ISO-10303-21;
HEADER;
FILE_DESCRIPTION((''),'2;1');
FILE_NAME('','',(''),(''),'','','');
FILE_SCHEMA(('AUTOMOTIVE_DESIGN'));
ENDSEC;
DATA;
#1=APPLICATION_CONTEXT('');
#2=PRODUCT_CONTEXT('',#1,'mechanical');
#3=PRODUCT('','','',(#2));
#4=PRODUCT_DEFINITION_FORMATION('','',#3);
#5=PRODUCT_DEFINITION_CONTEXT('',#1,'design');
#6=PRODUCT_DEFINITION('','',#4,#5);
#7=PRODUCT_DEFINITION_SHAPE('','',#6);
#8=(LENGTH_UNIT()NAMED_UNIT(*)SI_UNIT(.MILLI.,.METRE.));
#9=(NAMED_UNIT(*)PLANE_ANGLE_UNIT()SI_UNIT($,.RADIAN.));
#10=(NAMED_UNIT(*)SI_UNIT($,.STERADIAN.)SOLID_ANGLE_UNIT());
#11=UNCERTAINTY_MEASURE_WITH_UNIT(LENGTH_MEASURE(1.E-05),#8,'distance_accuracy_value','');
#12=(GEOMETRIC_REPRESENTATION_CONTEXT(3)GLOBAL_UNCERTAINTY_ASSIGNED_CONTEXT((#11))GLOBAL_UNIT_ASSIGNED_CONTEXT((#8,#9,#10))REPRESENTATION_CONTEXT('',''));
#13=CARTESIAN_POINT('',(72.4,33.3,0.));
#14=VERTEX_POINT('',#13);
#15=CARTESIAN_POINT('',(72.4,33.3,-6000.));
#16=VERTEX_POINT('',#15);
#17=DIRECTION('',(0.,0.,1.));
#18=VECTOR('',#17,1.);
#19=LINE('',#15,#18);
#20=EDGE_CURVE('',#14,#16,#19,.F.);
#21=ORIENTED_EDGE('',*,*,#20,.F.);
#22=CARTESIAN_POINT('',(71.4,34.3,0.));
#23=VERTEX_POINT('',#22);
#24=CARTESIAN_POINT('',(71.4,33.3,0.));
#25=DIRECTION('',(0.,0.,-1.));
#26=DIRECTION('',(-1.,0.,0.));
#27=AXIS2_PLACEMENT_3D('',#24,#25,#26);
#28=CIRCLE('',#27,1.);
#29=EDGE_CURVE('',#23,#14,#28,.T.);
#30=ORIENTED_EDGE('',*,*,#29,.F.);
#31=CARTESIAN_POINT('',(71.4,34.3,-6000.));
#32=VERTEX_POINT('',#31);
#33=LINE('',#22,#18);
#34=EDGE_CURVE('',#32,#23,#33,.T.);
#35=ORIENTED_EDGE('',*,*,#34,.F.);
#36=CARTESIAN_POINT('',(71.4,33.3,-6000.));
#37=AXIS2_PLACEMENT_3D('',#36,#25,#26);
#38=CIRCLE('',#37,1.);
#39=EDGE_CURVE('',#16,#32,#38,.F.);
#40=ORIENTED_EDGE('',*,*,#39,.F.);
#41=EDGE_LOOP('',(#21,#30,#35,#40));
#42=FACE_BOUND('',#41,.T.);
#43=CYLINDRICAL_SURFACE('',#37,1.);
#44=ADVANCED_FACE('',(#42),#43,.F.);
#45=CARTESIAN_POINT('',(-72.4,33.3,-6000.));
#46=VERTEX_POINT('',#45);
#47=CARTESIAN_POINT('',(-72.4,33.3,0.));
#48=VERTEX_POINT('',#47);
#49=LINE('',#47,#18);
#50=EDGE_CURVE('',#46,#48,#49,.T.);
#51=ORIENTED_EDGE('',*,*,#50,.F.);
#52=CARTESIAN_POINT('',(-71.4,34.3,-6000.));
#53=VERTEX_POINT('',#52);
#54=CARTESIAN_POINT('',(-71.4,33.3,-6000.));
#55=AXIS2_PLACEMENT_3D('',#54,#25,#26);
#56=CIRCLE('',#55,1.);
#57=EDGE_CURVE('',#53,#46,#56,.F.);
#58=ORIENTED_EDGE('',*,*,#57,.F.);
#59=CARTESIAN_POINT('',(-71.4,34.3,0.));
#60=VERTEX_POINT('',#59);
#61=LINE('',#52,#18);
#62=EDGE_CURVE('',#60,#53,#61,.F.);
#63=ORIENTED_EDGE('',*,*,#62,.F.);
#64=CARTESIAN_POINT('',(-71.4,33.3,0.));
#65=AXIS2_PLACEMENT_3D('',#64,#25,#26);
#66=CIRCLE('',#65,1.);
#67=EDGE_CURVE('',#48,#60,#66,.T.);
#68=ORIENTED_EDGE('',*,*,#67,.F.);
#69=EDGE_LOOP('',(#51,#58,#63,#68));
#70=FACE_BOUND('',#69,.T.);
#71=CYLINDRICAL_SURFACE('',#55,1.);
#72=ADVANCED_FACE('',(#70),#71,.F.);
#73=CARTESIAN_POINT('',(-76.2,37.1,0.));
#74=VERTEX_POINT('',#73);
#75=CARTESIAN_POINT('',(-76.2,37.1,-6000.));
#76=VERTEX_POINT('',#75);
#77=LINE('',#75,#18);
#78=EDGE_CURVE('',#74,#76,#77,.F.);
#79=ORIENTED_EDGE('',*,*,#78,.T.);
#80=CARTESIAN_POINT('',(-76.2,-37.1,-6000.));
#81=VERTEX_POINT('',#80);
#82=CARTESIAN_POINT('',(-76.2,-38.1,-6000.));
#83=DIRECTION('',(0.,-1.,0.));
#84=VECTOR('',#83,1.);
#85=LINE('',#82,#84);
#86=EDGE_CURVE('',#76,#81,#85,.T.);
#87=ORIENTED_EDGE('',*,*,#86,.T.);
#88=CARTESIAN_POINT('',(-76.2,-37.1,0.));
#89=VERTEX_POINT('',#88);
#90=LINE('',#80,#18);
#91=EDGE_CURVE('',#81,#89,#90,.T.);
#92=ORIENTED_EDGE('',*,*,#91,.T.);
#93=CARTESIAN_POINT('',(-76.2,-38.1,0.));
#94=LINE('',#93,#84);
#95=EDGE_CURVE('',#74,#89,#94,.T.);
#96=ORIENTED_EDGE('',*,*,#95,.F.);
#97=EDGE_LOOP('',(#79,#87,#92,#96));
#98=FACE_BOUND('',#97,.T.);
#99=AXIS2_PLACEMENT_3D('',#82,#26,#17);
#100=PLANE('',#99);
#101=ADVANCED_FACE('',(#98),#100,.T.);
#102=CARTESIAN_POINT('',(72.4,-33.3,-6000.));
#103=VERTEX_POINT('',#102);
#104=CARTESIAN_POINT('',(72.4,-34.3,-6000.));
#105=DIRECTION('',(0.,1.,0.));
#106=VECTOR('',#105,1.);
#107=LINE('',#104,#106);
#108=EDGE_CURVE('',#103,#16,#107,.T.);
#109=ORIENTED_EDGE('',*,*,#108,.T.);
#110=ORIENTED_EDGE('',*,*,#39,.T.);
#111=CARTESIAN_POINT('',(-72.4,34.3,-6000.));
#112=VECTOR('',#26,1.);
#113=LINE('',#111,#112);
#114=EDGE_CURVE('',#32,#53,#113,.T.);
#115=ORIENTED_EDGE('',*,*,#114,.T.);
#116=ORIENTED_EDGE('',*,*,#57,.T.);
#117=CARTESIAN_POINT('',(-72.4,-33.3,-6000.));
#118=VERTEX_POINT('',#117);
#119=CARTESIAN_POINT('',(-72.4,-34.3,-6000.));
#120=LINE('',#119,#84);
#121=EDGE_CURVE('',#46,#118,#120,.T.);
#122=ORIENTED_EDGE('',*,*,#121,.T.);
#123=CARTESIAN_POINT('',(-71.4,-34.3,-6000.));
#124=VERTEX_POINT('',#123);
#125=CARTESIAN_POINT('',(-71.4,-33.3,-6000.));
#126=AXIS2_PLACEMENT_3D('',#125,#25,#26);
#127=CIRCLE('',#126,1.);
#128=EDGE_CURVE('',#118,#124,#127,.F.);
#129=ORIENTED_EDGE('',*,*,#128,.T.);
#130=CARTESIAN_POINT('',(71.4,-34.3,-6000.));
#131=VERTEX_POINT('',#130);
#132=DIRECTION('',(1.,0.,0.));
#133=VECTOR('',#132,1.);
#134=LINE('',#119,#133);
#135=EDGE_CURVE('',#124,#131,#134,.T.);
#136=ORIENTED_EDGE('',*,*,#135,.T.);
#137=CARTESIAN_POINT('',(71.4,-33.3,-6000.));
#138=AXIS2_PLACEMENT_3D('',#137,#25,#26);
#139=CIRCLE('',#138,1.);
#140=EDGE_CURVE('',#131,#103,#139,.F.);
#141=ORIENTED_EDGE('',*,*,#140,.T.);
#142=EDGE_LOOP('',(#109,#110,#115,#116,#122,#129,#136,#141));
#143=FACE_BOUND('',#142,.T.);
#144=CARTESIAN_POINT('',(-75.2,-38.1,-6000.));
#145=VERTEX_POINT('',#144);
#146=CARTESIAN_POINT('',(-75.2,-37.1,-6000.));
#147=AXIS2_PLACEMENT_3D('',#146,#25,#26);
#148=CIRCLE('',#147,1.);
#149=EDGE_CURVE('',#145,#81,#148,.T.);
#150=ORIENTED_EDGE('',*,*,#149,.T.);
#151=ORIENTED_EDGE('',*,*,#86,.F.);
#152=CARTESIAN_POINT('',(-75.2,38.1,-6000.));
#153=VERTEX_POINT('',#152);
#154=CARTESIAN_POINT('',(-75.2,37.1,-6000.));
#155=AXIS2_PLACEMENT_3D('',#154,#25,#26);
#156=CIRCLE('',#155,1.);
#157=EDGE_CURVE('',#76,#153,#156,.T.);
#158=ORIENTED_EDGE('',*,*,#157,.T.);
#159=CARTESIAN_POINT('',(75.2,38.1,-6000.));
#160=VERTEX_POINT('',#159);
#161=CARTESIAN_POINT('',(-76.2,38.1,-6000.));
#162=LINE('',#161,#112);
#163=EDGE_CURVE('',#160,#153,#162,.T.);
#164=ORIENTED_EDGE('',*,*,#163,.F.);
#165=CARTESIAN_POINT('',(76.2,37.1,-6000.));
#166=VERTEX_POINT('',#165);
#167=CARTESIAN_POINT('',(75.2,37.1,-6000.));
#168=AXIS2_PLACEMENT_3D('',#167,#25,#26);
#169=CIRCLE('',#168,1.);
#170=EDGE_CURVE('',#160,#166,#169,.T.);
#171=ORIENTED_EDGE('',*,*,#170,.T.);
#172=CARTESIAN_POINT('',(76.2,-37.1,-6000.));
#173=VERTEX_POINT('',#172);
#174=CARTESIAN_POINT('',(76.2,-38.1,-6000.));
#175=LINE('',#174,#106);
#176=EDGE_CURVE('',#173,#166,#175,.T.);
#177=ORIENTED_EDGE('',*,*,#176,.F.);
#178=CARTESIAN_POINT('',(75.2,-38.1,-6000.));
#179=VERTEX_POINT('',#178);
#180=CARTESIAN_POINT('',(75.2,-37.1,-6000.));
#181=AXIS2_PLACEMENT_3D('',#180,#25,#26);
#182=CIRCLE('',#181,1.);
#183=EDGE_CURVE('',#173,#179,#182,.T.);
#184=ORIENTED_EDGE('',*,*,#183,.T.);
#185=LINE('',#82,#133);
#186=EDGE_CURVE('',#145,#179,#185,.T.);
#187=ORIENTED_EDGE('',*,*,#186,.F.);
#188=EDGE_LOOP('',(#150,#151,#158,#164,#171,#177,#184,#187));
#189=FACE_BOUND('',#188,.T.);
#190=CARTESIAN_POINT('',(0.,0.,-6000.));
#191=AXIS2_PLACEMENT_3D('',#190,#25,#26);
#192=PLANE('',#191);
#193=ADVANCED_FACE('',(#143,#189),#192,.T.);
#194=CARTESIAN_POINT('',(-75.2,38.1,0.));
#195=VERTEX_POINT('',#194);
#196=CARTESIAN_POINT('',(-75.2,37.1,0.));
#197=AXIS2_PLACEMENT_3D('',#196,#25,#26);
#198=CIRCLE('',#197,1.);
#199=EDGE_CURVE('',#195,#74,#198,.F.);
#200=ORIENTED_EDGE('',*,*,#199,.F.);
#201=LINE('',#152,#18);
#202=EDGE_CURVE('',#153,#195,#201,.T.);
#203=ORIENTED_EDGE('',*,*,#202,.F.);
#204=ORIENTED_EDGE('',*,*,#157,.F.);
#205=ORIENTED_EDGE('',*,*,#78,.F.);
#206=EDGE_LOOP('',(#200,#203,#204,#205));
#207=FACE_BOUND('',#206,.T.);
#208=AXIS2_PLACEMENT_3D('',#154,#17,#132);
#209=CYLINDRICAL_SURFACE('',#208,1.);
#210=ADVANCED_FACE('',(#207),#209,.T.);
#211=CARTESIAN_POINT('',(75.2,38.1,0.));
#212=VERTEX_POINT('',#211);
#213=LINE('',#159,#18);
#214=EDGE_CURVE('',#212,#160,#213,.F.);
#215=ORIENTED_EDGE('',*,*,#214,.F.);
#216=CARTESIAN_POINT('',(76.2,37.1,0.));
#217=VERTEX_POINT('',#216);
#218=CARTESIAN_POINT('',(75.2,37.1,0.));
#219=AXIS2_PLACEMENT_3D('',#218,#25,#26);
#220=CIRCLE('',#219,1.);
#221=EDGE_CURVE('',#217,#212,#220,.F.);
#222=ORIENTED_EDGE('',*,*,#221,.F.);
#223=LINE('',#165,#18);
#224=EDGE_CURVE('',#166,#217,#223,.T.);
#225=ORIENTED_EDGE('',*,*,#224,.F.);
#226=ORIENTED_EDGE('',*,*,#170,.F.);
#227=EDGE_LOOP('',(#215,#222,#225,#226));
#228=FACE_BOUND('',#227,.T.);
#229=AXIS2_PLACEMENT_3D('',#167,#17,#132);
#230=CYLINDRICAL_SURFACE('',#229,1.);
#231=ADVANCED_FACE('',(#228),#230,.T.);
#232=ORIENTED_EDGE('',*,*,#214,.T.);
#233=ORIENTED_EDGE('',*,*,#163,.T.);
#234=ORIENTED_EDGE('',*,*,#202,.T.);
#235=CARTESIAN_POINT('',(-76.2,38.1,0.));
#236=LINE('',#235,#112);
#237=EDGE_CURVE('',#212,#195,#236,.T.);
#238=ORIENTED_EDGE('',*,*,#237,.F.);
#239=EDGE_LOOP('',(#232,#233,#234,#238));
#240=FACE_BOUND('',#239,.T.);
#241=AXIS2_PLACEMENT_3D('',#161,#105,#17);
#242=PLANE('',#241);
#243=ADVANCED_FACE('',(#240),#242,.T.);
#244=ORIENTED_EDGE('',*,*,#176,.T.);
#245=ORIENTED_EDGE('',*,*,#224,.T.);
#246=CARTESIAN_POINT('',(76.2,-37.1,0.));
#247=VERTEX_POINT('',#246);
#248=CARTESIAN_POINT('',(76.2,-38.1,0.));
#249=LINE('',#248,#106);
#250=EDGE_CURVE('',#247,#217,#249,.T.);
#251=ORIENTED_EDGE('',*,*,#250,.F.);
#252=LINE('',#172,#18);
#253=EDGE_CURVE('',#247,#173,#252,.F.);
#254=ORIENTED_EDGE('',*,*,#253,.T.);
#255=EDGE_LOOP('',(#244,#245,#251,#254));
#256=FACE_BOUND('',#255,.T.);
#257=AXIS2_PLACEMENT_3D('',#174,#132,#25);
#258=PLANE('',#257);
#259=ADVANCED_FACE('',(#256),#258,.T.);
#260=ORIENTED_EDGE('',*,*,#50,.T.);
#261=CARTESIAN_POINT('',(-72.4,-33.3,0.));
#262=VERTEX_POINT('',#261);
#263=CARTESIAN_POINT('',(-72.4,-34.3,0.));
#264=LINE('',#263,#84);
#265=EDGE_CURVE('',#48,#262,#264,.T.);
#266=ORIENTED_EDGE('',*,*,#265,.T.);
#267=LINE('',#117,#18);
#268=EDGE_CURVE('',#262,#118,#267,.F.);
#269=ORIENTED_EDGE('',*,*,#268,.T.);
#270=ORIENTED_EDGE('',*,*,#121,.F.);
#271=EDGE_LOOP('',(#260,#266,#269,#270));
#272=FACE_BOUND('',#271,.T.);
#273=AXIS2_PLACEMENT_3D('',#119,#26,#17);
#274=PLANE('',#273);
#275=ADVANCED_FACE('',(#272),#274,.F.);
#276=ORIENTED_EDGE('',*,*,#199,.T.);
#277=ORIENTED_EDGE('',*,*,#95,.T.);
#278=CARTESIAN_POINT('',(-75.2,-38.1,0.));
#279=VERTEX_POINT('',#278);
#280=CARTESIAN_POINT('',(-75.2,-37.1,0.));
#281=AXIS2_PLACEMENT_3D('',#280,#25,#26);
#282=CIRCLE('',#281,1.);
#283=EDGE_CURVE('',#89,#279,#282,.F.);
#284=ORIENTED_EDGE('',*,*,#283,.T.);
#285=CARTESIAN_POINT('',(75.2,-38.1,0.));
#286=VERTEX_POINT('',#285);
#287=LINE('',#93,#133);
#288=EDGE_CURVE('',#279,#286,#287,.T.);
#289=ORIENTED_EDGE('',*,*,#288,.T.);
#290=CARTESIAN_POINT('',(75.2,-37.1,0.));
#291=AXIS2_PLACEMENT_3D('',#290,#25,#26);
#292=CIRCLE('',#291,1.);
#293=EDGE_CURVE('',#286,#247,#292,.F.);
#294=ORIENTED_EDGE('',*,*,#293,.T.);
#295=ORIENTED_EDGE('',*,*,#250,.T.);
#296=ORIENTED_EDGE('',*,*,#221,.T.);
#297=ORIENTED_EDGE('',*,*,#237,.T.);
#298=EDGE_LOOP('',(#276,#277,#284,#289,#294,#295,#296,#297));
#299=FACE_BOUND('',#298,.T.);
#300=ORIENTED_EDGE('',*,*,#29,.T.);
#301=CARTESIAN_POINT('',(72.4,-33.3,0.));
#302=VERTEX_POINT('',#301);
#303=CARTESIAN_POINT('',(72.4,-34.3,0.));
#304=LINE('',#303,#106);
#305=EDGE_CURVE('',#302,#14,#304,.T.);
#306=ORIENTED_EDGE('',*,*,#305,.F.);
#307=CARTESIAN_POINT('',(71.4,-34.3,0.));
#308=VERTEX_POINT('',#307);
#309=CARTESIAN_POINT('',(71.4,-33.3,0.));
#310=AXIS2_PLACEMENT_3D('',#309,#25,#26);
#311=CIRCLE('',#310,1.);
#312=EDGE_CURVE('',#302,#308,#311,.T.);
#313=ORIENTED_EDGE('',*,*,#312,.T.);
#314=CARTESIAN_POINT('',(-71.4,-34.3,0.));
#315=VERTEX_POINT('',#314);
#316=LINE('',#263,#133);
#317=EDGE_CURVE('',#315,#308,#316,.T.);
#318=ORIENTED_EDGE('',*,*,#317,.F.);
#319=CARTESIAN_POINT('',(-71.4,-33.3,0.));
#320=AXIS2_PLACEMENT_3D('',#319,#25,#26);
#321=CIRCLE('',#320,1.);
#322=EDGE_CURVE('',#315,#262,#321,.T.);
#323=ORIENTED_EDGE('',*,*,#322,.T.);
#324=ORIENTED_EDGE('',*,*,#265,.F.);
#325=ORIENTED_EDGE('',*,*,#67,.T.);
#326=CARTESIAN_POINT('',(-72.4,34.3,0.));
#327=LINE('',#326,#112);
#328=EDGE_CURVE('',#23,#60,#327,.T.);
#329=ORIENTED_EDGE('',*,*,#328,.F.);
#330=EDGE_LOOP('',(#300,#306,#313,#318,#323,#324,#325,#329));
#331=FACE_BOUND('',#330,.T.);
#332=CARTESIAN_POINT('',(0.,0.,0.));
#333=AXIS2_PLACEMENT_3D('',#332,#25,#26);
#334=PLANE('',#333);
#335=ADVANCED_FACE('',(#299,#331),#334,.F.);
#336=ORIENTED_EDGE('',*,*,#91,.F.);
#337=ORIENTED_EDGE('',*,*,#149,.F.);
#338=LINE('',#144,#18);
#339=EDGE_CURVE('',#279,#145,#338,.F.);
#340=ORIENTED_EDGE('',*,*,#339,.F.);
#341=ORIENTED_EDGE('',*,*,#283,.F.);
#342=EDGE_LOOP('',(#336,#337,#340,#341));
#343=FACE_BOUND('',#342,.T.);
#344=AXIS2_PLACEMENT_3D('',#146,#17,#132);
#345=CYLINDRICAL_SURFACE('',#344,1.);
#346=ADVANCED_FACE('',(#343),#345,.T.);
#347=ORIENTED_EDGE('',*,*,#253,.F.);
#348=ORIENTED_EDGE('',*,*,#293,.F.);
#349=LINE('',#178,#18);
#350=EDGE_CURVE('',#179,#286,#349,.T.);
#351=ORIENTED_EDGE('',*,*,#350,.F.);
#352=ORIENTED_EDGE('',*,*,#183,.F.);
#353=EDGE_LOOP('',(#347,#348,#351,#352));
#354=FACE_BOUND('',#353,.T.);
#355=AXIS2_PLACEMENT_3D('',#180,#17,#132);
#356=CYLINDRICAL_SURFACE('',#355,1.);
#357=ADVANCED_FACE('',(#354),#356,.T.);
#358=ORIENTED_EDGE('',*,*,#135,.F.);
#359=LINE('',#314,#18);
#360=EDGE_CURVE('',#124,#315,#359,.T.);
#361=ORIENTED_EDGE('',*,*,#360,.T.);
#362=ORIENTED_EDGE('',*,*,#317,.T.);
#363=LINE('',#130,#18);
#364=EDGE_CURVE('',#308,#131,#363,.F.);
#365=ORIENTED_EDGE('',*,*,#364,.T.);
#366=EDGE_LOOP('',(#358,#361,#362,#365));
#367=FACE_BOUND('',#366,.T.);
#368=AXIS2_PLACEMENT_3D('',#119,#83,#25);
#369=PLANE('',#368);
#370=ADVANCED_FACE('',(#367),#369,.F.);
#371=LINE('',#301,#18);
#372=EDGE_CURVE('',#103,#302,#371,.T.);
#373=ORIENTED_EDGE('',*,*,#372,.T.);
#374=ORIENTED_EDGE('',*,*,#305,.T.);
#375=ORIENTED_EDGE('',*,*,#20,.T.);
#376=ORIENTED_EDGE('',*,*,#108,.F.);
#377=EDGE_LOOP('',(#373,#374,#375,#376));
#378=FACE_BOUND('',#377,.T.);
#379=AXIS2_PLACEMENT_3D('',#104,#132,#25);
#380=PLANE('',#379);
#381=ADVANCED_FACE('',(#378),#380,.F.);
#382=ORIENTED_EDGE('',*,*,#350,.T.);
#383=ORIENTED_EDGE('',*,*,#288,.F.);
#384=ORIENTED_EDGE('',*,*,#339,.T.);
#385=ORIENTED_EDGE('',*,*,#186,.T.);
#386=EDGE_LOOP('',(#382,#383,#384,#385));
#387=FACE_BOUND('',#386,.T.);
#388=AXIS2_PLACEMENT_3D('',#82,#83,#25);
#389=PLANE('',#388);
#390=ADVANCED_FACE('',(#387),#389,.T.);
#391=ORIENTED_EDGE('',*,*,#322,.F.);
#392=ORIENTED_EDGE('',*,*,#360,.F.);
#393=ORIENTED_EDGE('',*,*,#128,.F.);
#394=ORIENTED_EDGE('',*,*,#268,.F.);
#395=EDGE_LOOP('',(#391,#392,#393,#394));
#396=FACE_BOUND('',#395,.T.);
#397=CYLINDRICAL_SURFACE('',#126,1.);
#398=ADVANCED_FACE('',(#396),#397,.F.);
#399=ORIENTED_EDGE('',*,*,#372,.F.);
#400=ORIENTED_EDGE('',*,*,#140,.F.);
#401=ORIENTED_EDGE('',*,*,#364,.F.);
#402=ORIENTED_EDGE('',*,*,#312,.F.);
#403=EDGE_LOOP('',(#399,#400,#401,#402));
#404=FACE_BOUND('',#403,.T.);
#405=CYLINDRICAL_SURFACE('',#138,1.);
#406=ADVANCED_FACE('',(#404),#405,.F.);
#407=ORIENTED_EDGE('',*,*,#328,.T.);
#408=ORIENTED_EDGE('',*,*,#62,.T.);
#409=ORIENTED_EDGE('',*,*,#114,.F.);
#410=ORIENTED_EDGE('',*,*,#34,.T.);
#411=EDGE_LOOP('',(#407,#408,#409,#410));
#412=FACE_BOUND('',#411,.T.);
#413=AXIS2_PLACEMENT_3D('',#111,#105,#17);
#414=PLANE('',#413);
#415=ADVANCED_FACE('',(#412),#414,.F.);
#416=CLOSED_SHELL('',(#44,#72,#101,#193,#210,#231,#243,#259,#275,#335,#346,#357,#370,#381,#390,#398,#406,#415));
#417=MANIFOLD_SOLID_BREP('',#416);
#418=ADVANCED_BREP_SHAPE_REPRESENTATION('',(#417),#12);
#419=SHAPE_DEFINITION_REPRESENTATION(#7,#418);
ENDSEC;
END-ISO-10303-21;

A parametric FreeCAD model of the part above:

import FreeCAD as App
import Part
import Sketcher


def edges_at(feature, points):
    """Names of the edges that pass closest to the given points."""
    edges = feature.Shape.Edges
    near = lambda p: min(range(len(edges)), key=lambda i: edges[i].distToShape(Part.Vertex(*p))[0])
    return sorted({f"Edge{near(p) + 1}" for p in points})


def add_polygon(sketch, points):
    """Adds a closed chain of lines whose ends are joined by coincident constraints."""
    first, n = sketch.GeometryCount, len(points)
    for a, b in zip(points, points[1:] + points[:1]):
        sketch.addGeometry(Part.LineSegment(App.Vector(*a, 0), App.Vector(*b, 0)), False)
    for i in range(n):
        sketch.addConstraint(Sketcher.Constraint("Coincident", first + i, 2, first + (i + 1) % n, 1))

doc = App.newDocument("Part")
body = doc.addObject("PartDesign::Body", "Body")

sketch1 = doc.addObject("Sketcher::SketchObject", "Sketch")
body.addObject(sketch1)
sketch1.AttachmentSupport = (doc.XY_Plane, [""])
sketch1.MapMode = "FlatFace"
add_polygon(sketch1, [(-76, 38), (-76, -38), (76, -38), (76, 38)])
add_polygon(sketch1, [(72, -34), (-72, -34), (-72, 34), (72, 34)])
sketch1.addConstraint([
    Sketcher.Constraint("Vertical", 0),
    Sketcher.Constraint("Horizontal", 1),
    Sketcher.Constraint("Vertical", 2),
    Sketcher.Constraint("Horizontal", 3),
    Sketcher.Constraint("Horizontal", 4),
    Sketcher.Constraint("Vertical", 5),
    Sketcher.Constraint("Horizontal", 6),
    Sketcher.Constraint("Vertical", 7),
    Sketcher.Constraint("Symmetric", 0, 2, 2, 2, -1, 1),
    Sketcher.Constraint("Symmetric", 4, 2, 6, 2, -1, 1),
    Sketcher.Constraint("DistanceX", 1, 1, 1, 2, 152.4),
    Sketcher.Constraint("DistanceX", 4, 2, 4, 1, 144.8),
    Sketcher.Constraint("DistanceY", 0, 2, 0, 1, 76.2),
    Sketcher.Constraint("DistanceY", 5, 1, 5, 2, 68.6),
])
pad1 = doc.addObject("PartDesign::Pad", "Pad")
body.addObject(pad1)
pad1.Profile = sketch1
pad1.Length = 6000
pad1.Reversed = True
doc.recompute()

fillet = doc.addObject("PartDesign::Fillet", "Fillet")
body.addObject(fillet)
fillet.Base = (pad1, edges_at(pad1, [
    (72.4, -34.3, -3000),
    (-72.4, -34.3, -3000),
    (-72.4, 34.3, -3000),
    (72.4, 34.3, -3000),
    (76.2, -38.1, -3000),
    (-76.2, -38.1, -3000),
    (-76.2, 38.1, -3000),
    (76.2, 38.1, -3000),
]))
fillet.Radius = 1

doc.recompute()
